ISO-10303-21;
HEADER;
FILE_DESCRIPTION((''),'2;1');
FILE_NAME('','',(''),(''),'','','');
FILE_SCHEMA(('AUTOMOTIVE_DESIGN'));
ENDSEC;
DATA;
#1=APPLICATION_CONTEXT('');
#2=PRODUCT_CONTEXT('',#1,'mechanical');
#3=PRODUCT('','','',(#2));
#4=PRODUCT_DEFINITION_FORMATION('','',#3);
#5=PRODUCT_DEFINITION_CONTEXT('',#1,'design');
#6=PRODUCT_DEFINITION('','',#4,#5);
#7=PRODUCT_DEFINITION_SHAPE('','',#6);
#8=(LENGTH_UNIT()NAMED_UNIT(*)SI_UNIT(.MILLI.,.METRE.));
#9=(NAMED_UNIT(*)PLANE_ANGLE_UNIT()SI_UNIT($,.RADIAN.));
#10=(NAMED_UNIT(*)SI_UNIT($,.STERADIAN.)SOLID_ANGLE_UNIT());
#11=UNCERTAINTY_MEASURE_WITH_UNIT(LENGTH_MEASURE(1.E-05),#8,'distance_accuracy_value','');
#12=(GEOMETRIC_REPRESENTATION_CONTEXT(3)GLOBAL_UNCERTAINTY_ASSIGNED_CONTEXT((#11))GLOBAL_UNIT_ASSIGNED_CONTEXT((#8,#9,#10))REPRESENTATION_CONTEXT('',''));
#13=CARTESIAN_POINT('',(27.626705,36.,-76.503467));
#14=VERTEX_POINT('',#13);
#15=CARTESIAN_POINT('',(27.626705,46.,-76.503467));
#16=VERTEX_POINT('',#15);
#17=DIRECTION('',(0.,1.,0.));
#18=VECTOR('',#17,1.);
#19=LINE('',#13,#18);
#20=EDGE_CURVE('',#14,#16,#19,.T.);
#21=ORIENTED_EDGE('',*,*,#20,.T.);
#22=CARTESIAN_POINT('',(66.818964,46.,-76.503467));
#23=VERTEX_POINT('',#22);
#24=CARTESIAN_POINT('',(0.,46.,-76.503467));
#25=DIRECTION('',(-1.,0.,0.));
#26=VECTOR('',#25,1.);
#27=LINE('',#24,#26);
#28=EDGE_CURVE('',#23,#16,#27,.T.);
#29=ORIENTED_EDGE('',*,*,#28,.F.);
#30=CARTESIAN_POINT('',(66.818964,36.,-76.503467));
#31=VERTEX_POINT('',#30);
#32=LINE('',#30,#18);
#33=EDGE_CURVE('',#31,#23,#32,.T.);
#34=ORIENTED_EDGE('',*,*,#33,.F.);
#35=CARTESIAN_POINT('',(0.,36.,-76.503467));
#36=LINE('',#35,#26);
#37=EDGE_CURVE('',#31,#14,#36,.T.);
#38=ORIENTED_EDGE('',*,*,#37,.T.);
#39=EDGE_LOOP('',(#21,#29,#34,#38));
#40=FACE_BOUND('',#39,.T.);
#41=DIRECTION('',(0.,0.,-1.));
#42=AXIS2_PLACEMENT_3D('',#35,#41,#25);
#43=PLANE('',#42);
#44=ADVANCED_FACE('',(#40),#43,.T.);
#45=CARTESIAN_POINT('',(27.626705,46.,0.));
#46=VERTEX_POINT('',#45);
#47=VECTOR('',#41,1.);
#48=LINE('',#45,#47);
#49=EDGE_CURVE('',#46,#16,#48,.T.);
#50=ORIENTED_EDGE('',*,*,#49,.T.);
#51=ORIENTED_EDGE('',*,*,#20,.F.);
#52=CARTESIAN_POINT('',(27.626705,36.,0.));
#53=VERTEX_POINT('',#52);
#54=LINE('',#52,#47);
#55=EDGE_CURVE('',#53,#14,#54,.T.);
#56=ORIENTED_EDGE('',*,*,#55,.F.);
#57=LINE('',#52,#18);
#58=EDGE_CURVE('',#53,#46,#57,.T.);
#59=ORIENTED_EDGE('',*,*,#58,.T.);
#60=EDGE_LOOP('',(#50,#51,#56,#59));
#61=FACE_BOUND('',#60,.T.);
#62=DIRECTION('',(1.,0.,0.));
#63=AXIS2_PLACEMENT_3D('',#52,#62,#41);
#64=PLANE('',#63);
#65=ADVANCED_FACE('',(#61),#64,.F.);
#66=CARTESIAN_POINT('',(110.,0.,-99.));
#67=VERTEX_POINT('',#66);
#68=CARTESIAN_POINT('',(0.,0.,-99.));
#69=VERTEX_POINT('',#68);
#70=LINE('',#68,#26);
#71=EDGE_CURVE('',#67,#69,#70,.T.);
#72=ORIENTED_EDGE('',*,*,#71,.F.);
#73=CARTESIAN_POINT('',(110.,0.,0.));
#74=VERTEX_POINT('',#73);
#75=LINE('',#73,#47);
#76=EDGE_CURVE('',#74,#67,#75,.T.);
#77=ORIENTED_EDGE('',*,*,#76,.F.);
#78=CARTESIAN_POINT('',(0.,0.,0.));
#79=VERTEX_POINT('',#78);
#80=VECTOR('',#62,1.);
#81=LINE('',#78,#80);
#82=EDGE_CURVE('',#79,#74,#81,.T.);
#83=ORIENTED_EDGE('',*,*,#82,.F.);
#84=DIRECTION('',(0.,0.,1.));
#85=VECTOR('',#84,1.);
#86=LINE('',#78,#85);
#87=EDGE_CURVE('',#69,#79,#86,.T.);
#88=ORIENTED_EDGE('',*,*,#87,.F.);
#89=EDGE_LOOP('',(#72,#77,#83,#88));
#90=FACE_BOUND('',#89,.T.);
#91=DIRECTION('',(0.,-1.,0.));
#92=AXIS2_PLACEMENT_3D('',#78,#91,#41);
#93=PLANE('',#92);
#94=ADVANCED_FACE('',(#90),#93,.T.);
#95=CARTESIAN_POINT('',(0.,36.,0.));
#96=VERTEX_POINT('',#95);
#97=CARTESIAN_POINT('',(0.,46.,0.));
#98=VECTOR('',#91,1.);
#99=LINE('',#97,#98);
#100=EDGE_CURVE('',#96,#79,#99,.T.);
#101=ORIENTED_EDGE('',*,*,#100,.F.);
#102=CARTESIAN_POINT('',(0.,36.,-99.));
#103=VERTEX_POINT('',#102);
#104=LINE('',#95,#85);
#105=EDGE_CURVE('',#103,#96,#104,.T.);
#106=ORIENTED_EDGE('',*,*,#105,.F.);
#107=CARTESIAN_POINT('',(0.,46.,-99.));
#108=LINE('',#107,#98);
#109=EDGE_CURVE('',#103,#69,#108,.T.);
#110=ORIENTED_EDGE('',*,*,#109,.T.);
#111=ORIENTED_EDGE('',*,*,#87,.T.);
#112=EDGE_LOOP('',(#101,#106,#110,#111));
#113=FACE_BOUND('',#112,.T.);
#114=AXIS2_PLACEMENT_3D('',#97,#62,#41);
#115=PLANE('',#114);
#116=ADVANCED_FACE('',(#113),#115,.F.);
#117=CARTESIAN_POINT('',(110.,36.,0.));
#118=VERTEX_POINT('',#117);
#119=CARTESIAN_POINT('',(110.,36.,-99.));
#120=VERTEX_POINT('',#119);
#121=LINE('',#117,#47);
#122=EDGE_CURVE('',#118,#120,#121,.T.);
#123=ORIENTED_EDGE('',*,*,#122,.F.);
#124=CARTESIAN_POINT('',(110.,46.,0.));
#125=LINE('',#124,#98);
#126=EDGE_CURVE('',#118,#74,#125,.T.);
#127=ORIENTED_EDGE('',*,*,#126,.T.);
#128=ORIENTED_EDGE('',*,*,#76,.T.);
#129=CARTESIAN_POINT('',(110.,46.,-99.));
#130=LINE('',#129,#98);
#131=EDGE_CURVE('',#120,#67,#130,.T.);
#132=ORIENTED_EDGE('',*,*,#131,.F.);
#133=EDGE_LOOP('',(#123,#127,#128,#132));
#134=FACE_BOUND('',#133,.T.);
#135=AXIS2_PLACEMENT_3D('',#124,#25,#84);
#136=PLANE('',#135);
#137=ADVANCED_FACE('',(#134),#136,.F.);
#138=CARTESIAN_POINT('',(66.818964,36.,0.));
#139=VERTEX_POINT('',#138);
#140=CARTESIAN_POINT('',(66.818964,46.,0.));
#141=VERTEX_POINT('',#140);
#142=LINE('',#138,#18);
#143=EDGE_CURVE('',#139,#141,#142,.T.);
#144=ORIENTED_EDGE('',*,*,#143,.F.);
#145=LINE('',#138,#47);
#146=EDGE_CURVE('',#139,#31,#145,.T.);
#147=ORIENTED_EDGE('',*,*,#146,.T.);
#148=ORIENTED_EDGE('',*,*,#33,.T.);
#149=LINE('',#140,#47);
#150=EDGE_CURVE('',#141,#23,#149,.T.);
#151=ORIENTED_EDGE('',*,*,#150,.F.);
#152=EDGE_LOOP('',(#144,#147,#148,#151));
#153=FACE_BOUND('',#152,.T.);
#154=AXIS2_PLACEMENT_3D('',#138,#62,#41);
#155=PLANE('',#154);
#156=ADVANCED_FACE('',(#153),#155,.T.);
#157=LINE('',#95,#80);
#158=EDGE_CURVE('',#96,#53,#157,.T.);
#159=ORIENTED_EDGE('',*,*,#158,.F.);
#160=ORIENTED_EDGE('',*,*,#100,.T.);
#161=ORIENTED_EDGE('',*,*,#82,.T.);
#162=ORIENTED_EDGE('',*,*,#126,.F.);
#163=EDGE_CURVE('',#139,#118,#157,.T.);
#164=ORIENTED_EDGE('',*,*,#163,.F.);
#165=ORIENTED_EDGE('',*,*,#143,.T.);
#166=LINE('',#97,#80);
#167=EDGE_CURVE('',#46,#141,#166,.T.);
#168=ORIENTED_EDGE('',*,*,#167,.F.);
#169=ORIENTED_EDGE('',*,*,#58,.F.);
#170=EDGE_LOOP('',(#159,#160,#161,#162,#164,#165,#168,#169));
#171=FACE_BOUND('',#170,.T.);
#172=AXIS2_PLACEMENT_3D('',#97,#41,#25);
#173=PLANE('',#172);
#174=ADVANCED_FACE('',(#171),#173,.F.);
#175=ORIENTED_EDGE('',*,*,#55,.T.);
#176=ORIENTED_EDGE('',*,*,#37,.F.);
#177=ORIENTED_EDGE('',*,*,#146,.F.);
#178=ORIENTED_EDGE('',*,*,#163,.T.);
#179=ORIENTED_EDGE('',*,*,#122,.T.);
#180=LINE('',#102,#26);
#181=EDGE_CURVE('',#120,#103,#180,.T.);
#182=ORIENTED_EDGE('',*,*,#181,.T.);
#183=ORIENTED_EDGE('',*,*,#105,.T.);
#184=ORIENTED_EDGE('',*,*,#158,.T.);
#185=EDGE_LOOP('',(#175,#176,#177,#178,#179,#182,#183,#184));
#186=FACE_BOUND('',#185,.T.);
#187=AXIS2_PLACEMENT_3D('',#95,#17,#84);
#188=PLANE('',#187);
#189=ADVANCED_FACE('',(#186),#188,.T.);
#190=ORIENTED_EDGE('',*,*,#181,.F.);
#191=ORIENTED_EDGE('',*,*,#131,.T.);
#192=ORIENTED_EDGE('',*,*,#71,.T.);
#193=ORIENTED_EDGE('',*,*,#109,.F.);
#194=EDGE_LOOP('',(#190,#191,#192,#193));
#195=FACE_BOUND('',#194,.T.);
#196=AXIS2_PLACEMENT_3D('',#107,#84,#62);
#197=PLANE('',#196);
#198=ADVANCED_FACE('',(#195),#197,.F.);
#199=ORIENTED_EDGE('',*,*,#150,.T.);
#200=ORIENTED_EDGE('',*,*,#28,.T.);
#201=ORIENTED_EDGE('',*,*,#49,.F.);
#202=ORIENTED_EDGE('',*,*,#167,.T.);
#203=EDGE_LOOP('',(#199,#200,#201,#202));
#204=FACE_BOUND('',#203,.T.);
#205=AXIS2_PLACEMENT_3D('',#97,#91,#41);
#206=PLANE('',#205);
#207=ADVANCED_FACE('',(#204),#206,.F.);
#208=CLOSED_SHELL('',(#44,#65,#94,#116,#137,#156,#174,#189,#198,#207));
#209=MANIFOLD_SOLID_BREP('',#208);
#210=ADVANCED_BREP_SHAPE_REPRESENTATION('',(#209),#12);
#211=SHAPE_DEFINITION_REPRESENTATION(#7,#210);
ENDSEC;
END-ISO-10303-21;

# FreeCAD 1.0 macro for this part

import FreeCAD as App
import Part
import Sketcher

doc = App.newDocument("Part")
body = doc.addObject("PartDesign::Body", "Body")

sketch1 = body.newObject("Sketcher::SketchObject", "Sketch")
sketch1.AttachmentSupport = (doc.getObject("XZ_Plane"), [""])
sketch1.MapMode = "FlatFace"
sketch1.addGeometry(Part.LineSegment(App.Vector(0, -99, 0), App.Vector(0, 0, 0)), False)
sketch1.addGeometry(Part.LineSegment(App.Vector(0, 0, 0), App.Vector(110, 0, 0)), False)
sketch1.addGeometry(Part.LineSegment(App.Vector(110, 0, 0), App.Vector(110, -99, 0)), False)
sketch1.addGeometry(Part.LineSegment(App.Vector(110, -99, 0), App.Vector(0, -99, 0)), False)
sketch1.addConstraint(Sketcher.Constraint("Coincident", 0, 2, 1, 1))
sketch1.addConstraint(Sketcher.Constraint("Coincident", 1, 2, 2, 1))
sketch1.addConstraint(Sketcher.Constraint("Coincident", 2, 2, 3, 1))
sketch1.addConstraint(Sketcher.Constraint("Coincident", 3, 2, 0, 1))
sketch1.addConstraint(Sketcher.Constraint("Vertical", 0))
sketch1.addConstraint(Sketcher.Constraint("Horizontal", 1))
sketch1.addConstraint(Sketcher.Constraint("Vertical", 2))
sketch1.addConstraint(Sketcher.Constraint("Horizontal", 3))
sketch1.addConstraint(Sketcher.Constraint("Coincident", 0, 2, -1, 1))
sketch1.addConstraint(Sketcher.Constraint("DistanceX", 1, 1, 1, 2, 110.0))
sketch1.addConstraint(Sketcher.Constraint("DistanceY", 0, 1, 0, 2, 99.0))
pad1 = body.newObject("PartDesign::Pad", "Pad")
pad1.Profile = sketch1
pad1.Length = 46
pad1.Reversed = True

sketch2 = body.newObject("Sketcher::SketchObject", "Sketch001")
sketch2.AttachmentSupport = (doc.getObject("XZ_Plane"), [""])
sketch2.MapMode = "FlatFace"
sketch2.AttachmentOffset = App.Placement(App.Vector(0, 0, -46), App.Rotation())
sketch2.addGeometry(Part.LineSegment(App.Vector(66.818964, -76.503467, 0), App.Vector(66.818964, 0, 0)), False)
sketch2.addGeometry(Part.LineSegment(App.Vector(66.818964, 0, 0), App.Vector(110, 0, 0)), False)
sketch2.addGeometry(Part.LineSegment(App.Vector(110, 0, 0), App.Vector(110, -99, 0)), False)
sketch2.addGeometry(Part.LineSegment(App.Vector(110, -99, 0), App.Vector(0, -99, 0)), False)
sketch2.addGeometry(Part.LineSegment(App.Vector(0, -99, 0), App.Vector(0, 0, 0)), False)
sketch2.addGeometry(Part.LineSegment(App.Vector(0, 0, 0), App.Vector(27.626705, 0, 0)), False)
sketch2.addGeometry(Part.LineSegment(App.Vector(27.626705, 0, 0), App.Vector(27.626705, -76.503467, 0)), False)
sketch2.addGeometry(Part.LineSegment(App.Vector(27.626705, -76.503467, 0), App.Vector(66.818964, -76.503467, 0)), False)
sketch2.addConstraint(Sketcher.Constraint("Coincident", 0, 2, 1, 1))
sketch2.addConstraint(Sketcher.Constraint("Coincident", 1, 2, 2, 1))
sketch2.addConstraint(Sketcher.Constraint("Coincident", 2, 2, 3, 1))
sketch2.addConstraint(Sketcher.Constraint("Coincident", 3, 2, 4, 1))
sketch2.addConstraint(Sketcher.Constraint("Coincident", 4, 2, 5, 1))
sketch2.addConstraint(Sketcher.Constraint("Coincident", 5, 2, 6, 1))
sketch2.addConstraint(Sketcher.Constraint("Coincident", 6, 2, 7, 1))
sketch2.addConstraint(Sketcher.Constraint("Coincident", 7, 2, 0, 1))
sketch2.addConstraint(Sketcher.Constraint("Vertical", 0))
sketch2.addConstraint(Sketcher.Constraint("Horizontal", 1))
sketch2.addConstraint(Sketcher.Constraint("Vertical", 2))
sketch2.addConstraint(Sketcher.Constraint("Horizontal", 3))
sketch2.addConstraint(Sketcher.Constraint("Vertical", 4))
sketch2.addConstraint(Sketcher.Constraint("Horizontal", 5))
sketch2.addConstraint(Sketcher.Constraint("Vertical", 6))
sketch2.addConstraint(Sketcher.Constraint("Horizontal", 7))
sketch2.addConstraint(Sketcher.Constraint("Coincident", 4, 2, -1, 1))
sketch2.addConstraint(Sketcher.Constraint("PointOnObject", 0, 2, -1))
sketch2.addConstraint(Sketcher.Constraint("DistanceX", 3, 2, 3, 1, 110.0))
sketch2.addConstraint(Sketcher.Constraint("DistanceY", 2, 2, 2, 1, 99.0))
sketch2.addConstraint(Sketcher.Constraint("DistanceX", 7, 1, 7, 2, 39.192259))
sketch2.addConstraint(Sketcher.Constraint("DistanceX", 1, 1, 1, 2, 43.181036))
sketch2.addConstraint(Sketcher.Constraint("DistanceY", 0, 1, 0, 2, 76.503467))
pocket1 = body.newObject("PartDesign::Pocket", "Pocket")
pocket1.Profile = sketch2
pocket1.Length = 10
pocket1.Reversed = True

doc.recompute()
